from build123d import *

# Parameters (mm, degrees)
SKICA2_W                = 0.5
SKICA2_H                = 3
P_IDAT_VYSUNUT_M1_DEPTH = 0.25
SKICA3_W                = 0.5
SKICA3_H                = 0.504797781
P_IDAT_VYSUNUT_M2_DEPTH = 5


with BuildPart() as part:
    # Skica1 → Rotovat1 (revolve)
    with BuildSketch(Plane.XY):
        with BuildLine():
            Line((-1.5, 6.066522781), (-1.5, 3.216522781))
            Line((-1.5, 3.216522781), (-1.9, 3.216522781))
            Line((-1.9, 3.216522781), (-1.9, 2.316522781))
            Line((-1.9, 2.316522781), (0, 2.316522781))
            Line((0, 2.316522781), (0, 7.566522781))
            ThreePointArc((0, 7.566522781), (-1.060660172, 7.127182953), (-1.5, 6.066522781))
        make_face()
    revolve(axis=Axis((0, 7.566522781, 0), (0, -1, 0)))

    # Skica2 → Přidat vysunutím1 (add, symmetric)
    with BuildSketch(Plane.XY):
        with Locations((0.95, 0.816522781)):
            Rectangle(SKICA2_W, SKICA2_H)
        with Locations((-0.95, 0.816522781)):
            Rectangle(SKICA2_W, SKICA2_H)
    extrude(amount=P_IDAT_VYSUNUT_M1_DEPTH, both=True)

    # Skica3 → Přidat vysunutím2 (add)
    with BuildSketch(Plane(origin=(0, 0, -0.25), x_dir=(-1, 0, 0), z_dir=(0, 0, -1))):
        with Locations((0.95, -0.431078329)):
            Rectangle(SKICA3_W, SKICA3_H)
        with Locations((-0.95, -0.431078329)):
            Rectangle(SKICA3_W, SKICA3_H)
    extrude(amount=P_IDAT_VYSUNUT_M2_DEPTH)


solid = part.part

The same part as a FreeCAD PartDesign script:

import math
import FreeCAD as App
import Part
import Sketcher

V = App.Vector
Q = App.Units.Quantity

doc = App.newDocument("Part")
body = doc.addObject("PartDesign::Body", "Body")

sketch1 = doc.addObject("Sketcher::SketchObject", "Sketch")
body.addObject(sketch1)
sketch1.AttachmentSupport = (doc.XY_Plane, [""])
sketch1.MapMode = "FlatFace"
sketch1.addGeometry([
    Part.LineSegment(V(-1.5, 6.066523, 0), V(-1.5, 3.216523, 0)),
    Part.LineSegment(V(-1.5, 3.216523, 0), V(-1.9, 3.216523, 0)),
    Part.LineSegment(V(-1.9, 3.216523, 0), V(-1.9, 2.316523, 0)),
    Part.LineSegment(V(-1.9, 2.316523, 0), V(0, 2.316523, 0)),
    Part.LineSegment(V(0, 2.316523, 0), V(0, 7.566523, 0)),
    Part.ArcOfCircle(Part.Circle(V(0, 6.066523, 0), V(0, 0, 1), 1.5), math.radians(90), math.radians(180)),
], False)
sketch1.addConstraint([
    Sketcher.Constraint("Coincident", 0, 2, 1, 1),
    Sketcher.Constraint("Coincident", 1, 2, 2, 1),
    Sketcher.Constraint("Coincident", 2, 2, 3, 1),
    Sketcher.Constraint("Coincident", 3, 2, 4, 1),
    Sketcher.Constraint("Coincident", 4, 2, 5, 1),
    Sketcher.Constraint("Tangent", 5, 2, 0, 1),
    Sketcher.Constraint("Vertical", 0),
    Sketcher.Constraint("Horizontal", 1),
    Sketcher.Constraint("Vertical", 2),
    Sketcher.Constraint("Horizontal", 3),
    Sketcher.Constraint("Vertical", 4),
    Sketcher.Constraint("PointOnObject", 5, 3, -2),
    Sketcher.Constraint("PointOnObject", 3, 2, -2),
    Sketcher.Constraint("Radius", 5, Q("1.5 mm")),
    Sketcher.Constraint("DistanceX", 1, 2, 1, 1, Q("0.4 mm")),
    Sketcher.Constraint("DistanceY", 2, 2, 2, 1, Q("0.9 mm")),
    Sketcher.Constraint("DistanceY", 0, 2, 0, 1, Q("2.85 mm")),
    Sketcher.Constraint("DistanceY", -1, 1, 5, 3, Q("6.066523 mm")),
])
revolution = doc.addObject("PartDesign::Revolution", "Revolution")
body.addObject(revolution)
revolution.Profile = sketch1
revolution.ReferenceAxis = (sketch1, ["V_Axis"])
revolution.Angle = 360

sketch2 = doc.addObject("Sketcher::SketchObject", "Sketch001")
body.addObject(sketch2)
sketch2.AttachmentSupport = (doc.XY_Plane, [""])
sketch2.MapMode = "FlatFace"
sketch2.addGeometry([
    Part.LineSegment(V(0.7, 2.316523, 0), V(0.7, -0.683477, 0)),
    Part.LineSegment(V(0.7, -0.683477, 0), V(1.2, -0.683477, 0)),
    Part.LineSegment(V(1.2, -0.683477, 0), V(1.2, 2.316523, 0)),
    Part.LineSegment(V(1.2, 2.316523, 0), V(0.7, 2.316523, 0)),
    Part.LineSegment(V(-1.2, 2.316523, 0), V(-1.2, -0.683477, 0)),
    Part.LineSegment(V(-1.2, -0.683477, 0), V(-0.7, -0.683477, 0)),
    Part.LineSegment(V(-0.7, -0.683477, 0), V(-0.7, 2.316523, 0)),
    Part.LineSegment(V(-0.7, 2.316523, 0), V(-1.2, 2.316523, 0)),
], False)
sketch2.addConstraint([
    Sketcher.Constraint("Coincident", 0, 2, 1, 1),
    Sketcher.Constraint("Coincident", 1, 2, 2, 1),
    Sketcher.Constraint("Coincident", 2, 2, 3, 1),
    Sketcher.Constraint("Coincident", 3, 2, 0, 1),
    Sketcher.Constraint("Coincident", 4, 2, 5, 1),
    Sketcher.Constraint("Coincident", 5, 2, 6, 1),
    Sketcher.Constraint("Coincident", 6, 2, 7, 1),
    Sketcher.Constraint("Coincident", 7, 2, 4, 1),
    Sketcher.Constraint("Vertical", 0),
    Sketcher.Constraint("Horizontal", 1),
    Sketcher.Constraint("Vertical", 2),
    Sketcher.Constraint("Horizontal", 3),
    Sketcher.Constraint("Vertical", 4),
    Sketcher.Constraint("Horizontal", 5),
    Sketcher.Constraint("Vertical", 6),
    Sketcher.Constraint("Horizontal", 7),
    Sketcher.Constraint("Symmetric", 1, 2, 4, 2, -2),
    Sketcher.Constraint("Symmetric", 3, 2, 6, 2, -2),
    Sketcher.Constraint("DistanceY", 0, 2, 0, 1, Q("3 mm")),
    Sketcher.Constraint("DistanceX", 1, 1, 1, 2, Q("0.5 mm")),
    Sketcher.Constraint("DistanceX", -1, 1, 0, 2, Q("0.7 mm")),
    Sketcher.Constraint("DistanceY", 0, 2, -1, 1, Q("0.683477 mm")),
])
pad1 = doc.addObject("PartDesign::Pad", "Pad")
body.addObject(pad1)
pad1.Profile = sketch2
pad1.Length = 0.5
pad1.Midplane = True

sketch3 = doc.addObject("Sketcher::SketchObject", "Sketch002")
body.addObject(sketch3)
sketch3.AttachmentSupport = (doc.XY_Plane, [""])
sketch3.MapMode = "FlatFace"
sketch3.AttachmentOffset = App.Placement(V(0, 0, -0.25), App.Rotation())
sketch3.addGeometry([
    Part.LineSegment(V(-0.7, -0.178679, 0), V(-0.7, -0.683477, 0)),
    Part.LineSegment(V(-0.7, -0.683477, 0), V(-1.2, -0.683477, 0)),
    Part.LineSegment(V(-1.2, -0.683477, 0), V(-1.2, -0.178679, 0)),
    Part.LineSegment(V(-1.2, -0.178679, 0), V(-0.7, -0.178679, 0)),
    Part.LineSegment(V(1.2, -0.178679, 0), V(1.2, -0.683477, 0)),
    Part.LineSegment(V(1.2, -0.683477, 0), V(0.7, -0.683477, 0)),
    Part.LineSegment(V(0.7, -0.683477, 0), V(0.7, -0.178679, 0)),
    Part.LineSegment(V(0.7, -0.178679, 0), V(1.2, -0.178679, 0)),
], False)
sketch3.addConstraint([
    Sketcher.Constraint("Coincident", 0, 2, 1, 1),
    Sketcher.Constraint("Coincident", 1, 2, 2, 1),
    Sketcher.Constraint("Coincident", 2, 2, 3, 1),
    Sketcher.Constraint("Coincident", 3, 2, 0, 1),
    Sketcher.Constraint("Coincident", 4, 2, 5, 1),
    Sketcher.Constraint("Coincident", 5, 2, 6, 1),
    Sketcher.Constraint("Coincident", 6, 2, 7, 1),
    Sketcher.Constraint("Coincident", 7, 2, 4, 1),
    Sketcher.Constraint("Vertical", 0),
    Sketcher.Constraint("Horizontal", 1),
    Sketcher.Constraint("Vertical", 2),
    Sketcher.Constraint("Horizontal", 3),
    Sketcher.Constraint("Vertical", 4),
    Sketcher.Constraint("Horizontal", 5),
    Sketcher.Constraint("Vertical", 6),
    Sketcher.Constraint("Horizontal", 7),
    Sketcher.Constraint("Symmetric", 1, 2, 4, 2, -2),
    Sketcher.Constraint("Symmetric", 3, 2, 6, 2, -2),
    Sketcher.Constraint("DistanceX", 1, 2, 1, 1, Q("0.5 mm")),
    Sketcher.Constraint("DistanceX", 0, 2, -1, 1, Q("0.7 mm")),
    Sketcher.Constraint("DistanceY", 0, 2, 0, 1, Q("0.504798 mm")),
    Sketcher.Constraint("DistanceY", 2, 2, -1, 1, Q("0.178679 mm")),
])
pad2 = doc.addObject("PartDesign::Pad", "Pad001")
body.addObject(pad2)
pad2.Profile = sketch3
pad2.Length = 5
pad2.Reversed = True

doc.recompute()
